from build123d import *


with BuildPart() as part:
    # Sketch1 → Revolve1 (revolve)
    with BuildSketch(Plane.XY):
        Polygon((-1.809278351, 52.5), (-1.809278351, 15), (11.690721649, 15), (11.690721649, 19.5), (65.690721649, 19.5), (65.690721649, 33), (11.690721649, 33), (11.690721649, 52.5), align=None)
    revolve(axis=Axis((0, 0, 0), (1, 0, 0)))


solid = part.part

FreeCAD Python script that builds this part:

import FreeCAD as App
import Part
import Sketcher

V = App.Vector
Q = App.Units.Quantity


def add_polygon(sketch, points):
    """Adds a closed chain of lines whose ends are joined by coincident constraints."""
    first, n = sketch.GeometryCount, len(points)
    for a, b in zip(points, points[1:] + points[:1]):
        sketch.addGeometry(Part.LineSegment(App.Vector(*a, 0), App.Vector(*b, 0)), False)
    for i in range(n):
        sketch.addConstraint(Sketcher.Constraint("Coincident", first + i, 2, first + (i + 1) % n, 1))

doc = App.newDocument("Part")
params = doc.addObject("Spreadsheet::Sheet", "Params")
for row, (alias, value) in enumerate([
    ("sketch1_width", "54 mm"),
    ("sketch1_width2", "13.5 mm"),
    ("sketch1_height", "37.5 mm"),
    ("sketch1_height2", "4.5 mm"),
    ("revolution_angle", "360 deg"),
], start=1):
    params.set(f"A{row}", alias)
    params.set(f"B{row}", "=" + value)
    params.setAlias(f"B{row}", alias)

body = doc.addObject("PartDesign::Body", "Body")

# Sketch on XY plane
sketch1 = body.newObject("Sketcher::SketchObject", "Sketch")
sketch1.AttachmentSupport = (doc.getObject("XY_Plane"), [""])
sketch1.MapMode = "FlatFace"
add_polygon(sketch1, [(-1.8, 52.5), (-1.8, 15), (11.7, 15), (11.7, 19.5), (65.7, 19.5), (65.7, 33), (11.7, 33), (11.7, 52.5)])  # lines 0-7
sketch1.addConstraint(Sketcher.Constraint("Vertical", 0))
sketch1.addConstraint(Sketcher.Constraint("Horizontal", 1))
sketch1.addConstraint(Sketcher.Constraint("Vertical", 2))
sketch1.addConstraint(Sketcher.Constraint("Horizontal", 3))
sketch1.addConstraint(Sketcher.Constraint("Vertical", 4))
sketch1.addConstraint(Sketcher.Constraint("Horizontal", 5))
sketch1.addConstraint(Sketcher.Constraint("Vertical", 6))
sketch1.addConstraint(Sketcher.Constraint("Horizontal", 7))
sketch1.addConstraint(Sketcher.Constraint("Vertical", 2, 2, 5, 2))
sketch1.addConstraint(Sketcher.Constraint("Equal", 7, 4))
sketch1.addConstraint(Sketcher.Constraint("DistanceX", 3, 1, 3, 2, Q("54 mm")))
sketch1.addConstraint(Sketcher.Constraint("DistanceX", 1, 1, 1, 2, Q("13.5 mm")))
sketch1.addConstraint(Sketcher.Constraint("DistanceY", 0, 2, 0, 1, Q("37.5 mm")))
sketch1.addConstraint(Sketcher.Constraint("DistanceY", 2, 1, 2, 2, Q("4.5 mm")))
sketch1.addConstraint(Sketcher.Constraint("DistanceY", -1, 1, 0, 2, Q("15 mm")))
sketch1.addConstraint(Sketcher.Constraint("DistanceX", 0, 2, -1, 1, Q("1.809278 mm")))
sketch1.setExpression("Constraints[18]", "Params.sketch1_width")
sketch1.setExpression("Constraints[19]", "Params.sketch1_width2")
sketch1.setExpression("Constraints[20]", "Params.sketch1_height")
sketch1.setExpression("Constraints[21]", "Params.sketch1_height2")
revolution = body.newObject("PartDesign::Revolution", "Revolution")
revolution.Profile = sketch1
revolution.ReferenceAxis = (sketch1, ["H_Axis"])
revolution.setExpression("Angle", "Params.revolution_angle")

doc.recompute()
